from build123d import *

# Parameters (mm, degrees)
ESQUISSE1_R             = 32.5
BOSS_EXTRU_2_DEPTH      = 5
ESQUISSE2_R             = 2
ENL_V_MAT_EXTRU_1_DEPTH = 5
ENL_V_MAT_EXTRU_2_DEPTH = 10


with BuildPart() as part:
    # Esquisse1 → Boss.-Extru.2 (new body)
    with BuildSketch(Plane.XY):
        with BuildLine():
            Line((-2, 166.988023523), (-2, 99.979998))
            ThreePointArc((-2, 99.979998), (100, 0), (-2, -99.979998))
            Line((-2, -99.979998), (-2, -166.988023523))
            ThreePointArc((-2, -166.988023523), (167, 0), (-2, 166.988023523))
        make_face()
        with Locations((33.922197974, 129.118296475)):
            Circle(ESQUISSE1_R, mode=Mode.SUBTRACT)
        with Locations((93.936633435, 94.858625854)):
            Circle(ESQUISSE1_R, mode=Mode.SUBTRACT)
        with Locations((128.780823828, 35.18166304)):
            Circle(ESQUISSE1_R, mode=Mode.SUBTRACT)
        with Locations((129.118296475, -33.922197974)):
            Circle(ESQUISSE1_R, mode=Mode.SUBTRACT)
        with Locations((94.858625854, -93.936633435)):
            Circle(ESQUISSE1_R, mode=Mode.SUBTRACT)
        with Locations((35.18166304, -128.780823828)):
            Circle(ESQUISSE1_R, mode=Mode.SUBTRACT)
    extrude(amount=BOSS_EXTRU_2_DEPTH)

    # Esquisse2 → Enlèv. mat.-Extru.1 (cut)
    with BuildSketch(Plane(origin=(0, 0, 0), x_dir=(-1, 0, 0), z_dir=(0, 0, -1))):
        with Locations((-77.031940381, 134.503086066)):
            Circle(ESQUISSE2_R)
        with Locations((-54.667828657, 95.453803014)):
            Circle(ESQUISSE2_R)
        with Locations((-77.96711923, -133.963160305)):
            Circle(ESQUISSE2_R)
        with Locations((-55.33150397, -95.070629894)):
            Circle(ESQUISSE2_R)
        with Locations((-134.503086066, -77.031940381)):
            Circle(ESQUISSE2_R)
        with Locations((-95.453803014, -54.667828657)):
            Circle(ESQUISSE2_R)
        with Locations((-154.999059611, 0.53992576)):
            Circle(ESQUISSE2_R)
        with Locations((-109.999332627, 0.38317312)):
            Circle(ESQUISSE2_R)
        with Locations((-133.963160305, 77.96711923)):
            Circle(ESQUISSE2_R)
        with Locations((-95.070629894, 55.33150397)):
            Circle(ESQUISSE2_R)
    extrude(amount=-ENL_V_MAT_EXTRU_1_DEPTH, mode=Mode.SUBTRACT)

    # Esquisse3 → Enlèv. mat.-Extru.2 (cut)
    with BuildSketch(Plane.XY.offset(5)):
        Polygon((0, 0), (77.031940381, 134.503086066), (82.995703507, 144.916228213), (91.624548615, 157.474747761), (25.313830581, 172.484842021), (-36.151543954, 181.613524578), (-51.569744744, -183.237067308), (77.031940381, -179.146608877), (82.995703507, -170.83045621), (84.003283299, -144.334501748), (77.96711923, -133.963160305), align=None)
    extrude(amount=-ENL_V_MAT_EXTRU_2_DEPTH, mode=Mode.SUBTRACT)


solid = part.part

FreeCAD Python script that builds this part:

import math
import FreeCAD as App
import Part
import Sketcher

doc = App.newDocument("Part")
body = doc.addObject("PartDesign::Body", "Body")

# Sketch on XY plane
sketch1 = body.newObject("Sketcher::SketchObject", "Sketch")
sketch1.AttachmentSupport = (doc.getObject("XY_Plane"), [""])
sketch1.MapMode = "FlatFace"
sketch1.addGeometry(Part.LineSegment(App.Vector(-2, 167, 0), App.Vector(-2, 100, 0)), False)
sketch1.addGeometry(Part.ArcOfCircle(Part.Circle(App.Vector(0, 0, 0), App.Vector(0, 0, 1), 100), math.radians(-91), math.radians(91)), False)
sketch1.addGeometry(Part.LineSegment(App.Vector(-2, -100, 0), App.Vector(-2, -167, 0)), False)
sketch1.addGeometry(Part.ArcOfCircle(Part.Circle(App.Vector(0, 0, 0), App.Vector(0, 0, 1), 167), math.radians(-91), math.radians(91)), False)
sketch1.addGeometry(Part.Circle(App.Vector(35, -129, 0), App.Vector(0, 0, 1), 32), False)
sketch1.addGeometry(Part.Circle(App.Vector(95, -94, 0), App.Vector(0, 0, 1), 32), False)
sketch1.addGeometry(Part.Circle(App.Vector(129, -34, 0), App.Vector(0, 0, 1), 32), False)
sketch1.addGeometry(Part.Circle(App.Vector(34, 129, 0), App.Vector(0, 0, 1), 32), False)
sketch1.addGeometry(Part.Circle(App.Vector(129, 35, 0), App.Vector(0, 0, 1), 32), False)
sketch1.addGeometry(Part.Circle(App.Vector(94, 95, 0), App.Vector(0, 0, 1), 32), False)
sketch1.addConstraint(Sketcher.Constraint("Coincident", 0, 2, 1, 2))
sketch1.addConstraint(Sketcher.Constraint("Coincident", 1, 1, 2, 1))
sketch1.addConstraint(Sketcher.Constraint("Coincident", 2, 2, 3, 1))
sketch1.addConstraint(Sketcher.Constraint("Coincident", 3, 2, 0, 1))
sketch1.addConstraint(Sketcher.Constraint("Vertical", 0))
sketch1.addConstraint(Sketcher.Constraint("Vertical", 2))
sketch1.addConstraint(Sketcher.Constraint("Coincident", 1, 3, -1, 1))
sketch1.addConstraint(Sketcher.Constraint("Coincident", 3, 3, -1, 1))
sketch1.addConstraint(Sketcher.Constraint("Equal", 4, 5))
sketch1.addConstraint(Sketcher.Constraint("Equal", 5, 6))
sketch1.addConstraint(Sketcher.Constraint("Equal", 6, 7))
sketch1.addConstraint(Sketcher.Constraint("Equal", 7, 8))
sketch1.addConstraint(Sketcher.Constraint("Equal", 8, 9))
sketch1.addConstraint(Sketcher.Constraint("Vertical", 0, 2, 1, 1))
sketch1.addConstraint(Sketcher.Constraint("Diameter", 4, 65.0))
sketch1.addConstraint(Sketcher.Constraint("Radius", 1, 100.0))
sketch1.addConstraint(Sketcher.Constraint("Radius", 3, 167.0))
sketch1.addConstraint(Sketcher.Constraint("DistanceX", 0, 2, -1, 1, 2.0))
sketch1.addConstraint(Sketcher.Constraint("DistanceX", 7, 3, 6, 3, 95.196099))
sketch1.addConstraint(Sketcher.Constraint("DistanceY", 0, 2, 7, 3, 29.138298))
sketch1.addConstraint(Sketcher.Constraint("DistanceY", 1, 1, 6, 3, 66.0578))
sketch1.addConstraint(Sketcher.Constraint("DistanceY", 2, 2, 4, 3, 38.2072))
sketch1.addConstraint(Sketcher.Constraint("DistanceY", 4, 3, 5, 3, 34.84419))
sketch1.addConstraint(Sketcher.Constraint("DistanceX", 5, 3, 6, 3, 34.259671))
sketch1.addConstraint(Sketcher.Constraint("DistanceY", 6, 3, 8, 3, 69.103861))
sketch1.addConstraint(Sketcher.Constraint("DistanceY", 9, 3, 7, 3, 34.259671))
sketch1.addConstraint(Sketcher.Constraint("DistanceX", 9, 3, 8, 3, 34.84419))
sketch1.addConstraint(Sketcher.Constraint("DistanceX", -1, 1, 4, 3, 35.181663))
sketch1.addConstraint(Sketcher.Constraint("DistanceX", -1, 1, 5, 3, 94.858626))
sketch1.addConstraint(Sketcher.Constraint("DistanceX", -1, 1, 8, 3, 128.780824))
pad1 = body.newObject("PartDesign::Pad", "Pad")
pad1.Profile = sketch1
pad1.Length = 5

# Sketch on XY plane
sketch2 = body.newObject("Sketcher::SketchObject", "Sketch001")
sketch2.AttachmentSupport = (doc.getObject("XY_Plane"), [""])
sketch2.MapMode = "FlatFace"
sketch2.addGeometry(Part.Circle(App.Vector(77, 134.5, 0), App.Vector(0, 0, 1), 2), False)
sketch2.addGeometry(Part.Circle(App.Vector(54.7, 95.5, 0), App.Vector(0, 0, 1), 2), False)
sketch2.addGeometry(Part.Circle(App.Vector(78, -134, 0), App.Vector(0, 0, 1), 2), False)
sketch2.addGeometry(Part.Circle(App.Vector(55.3, -95.1, 0), App.Vector(0, 0, 1), 2), False)
sketch2.addGeometry(Part.Circle(App.Vector(134.5, -77, 0), App.Vector(0, 0, 1), 2), False)
sketch2.addGeometry(Part.Circle(App.Vector(95.5, -54.7, 0), App.Vector(0, 0, 1), 2), False)
sketch2.addGeometry(Part.Circle(App.Vector(155, 0.5, 0), App.Vector(0, 0, 1), 2), False)
sketch2.addGeometry(Part.Circle(App.Vector(110, 0.4, 0), App.Vector(0, 0, 1), 2), False)
sketch2.addGeometry(Part.Circle(App.Vector(134, 78, 0), App.Vector(0, 0, 1), 2), False)
sketch2.addGeometry(Part.Circle(App.Vector(95.1, 55.3, 0), App.Vector(0, 0, 1), 2), False)
sketch2.addConstraint(Sketcher.Constraint("Equal", 0, 1))
sketch2.addConstraint(Sketcher.Constraint("Equal", 1, 2))
sketch2.addConstraint(Sketcher.Constraint("Equal", 2, 3))
sketch2.addConstraint(Sketcher.Constraint("Equal", 3, 4))
sketch2.addConstraint(Sketcher.Constraint("Equal", 4, 5))
sketch2.addConstraint(Sketcher.Constraint("Equal", 5, 6))
sketch2.addConstraint(Sketcher.Constraint("Equal", 6, 7))
sketch2.addConstraint(Sketcher.Constraint("Equal", 7, 8))
sketch2.addConstraint(Sketcher.Constraint("Equal", 8, 9))
sketch2.addConstraint(Sketcher.Constraint("Diameter", 0, 4.0))
sketch2.addConstraint(Sketcher.Constraint("DistanceY", 5, 3, 7, 3, 55.051002))
sketch2.addConstraint(Sketcher.Constraint("DistanceX", 3, 3, 5, 3, 40.122299))
sketch2.addConstraint(Sketcher.Constraint("DistanceY", 3, 3, 5, 3, 40.402801))
sketch2.addConstraint(Sketcher.Constraint("DistanceX", 8, 3, 6, 3, 21.035899))
sketch2.addConstraint(Sketcher.Constraint("DistanceX", 1, 3, 9, 3, 40.402801))
sketch2.addConstraint(Sketcher.Constraint("DistanceY", 9, 3, 1, 3, 40.122299))
sketch2.addConstraint(Sketcher.Constraint("DistanceX", -1, 1, 0, 3, 77.03194))
sketch2.addConstraint(Sketcher.Constraint("DistanceX", -1, 1, 1, 3, 54.667829))
sketch2.addConstraint(Sketcher.Constraint("DistanceX", -1, 1, 2, 3, 77.967119))
sketch2.addConstraint(Sketcher.Constraint("DistanceY", 2, 3, -1, 1, 133.96316))
sketch2.addConstraint(Sketcher.Constraint("DistanceY", 3, 3, -1, 1, 95.07063))
sketch2.addConstraint(Sketcher.Constraint("DistanceY", 4, 3, -1, 1, 77.03194))
sketch2.addConstraint(Sketcher.Constraint("DistanceX", -1, 1, 6, 3, 154.99906))
sketch2.addConstraint(Sketcher.Constraint("DistanceY", -1, 1, 8, 3, 77.967119))
sketch2.addConstraint(Sketcher.Constraint("DistanceY", 5, 3, 1, 3, 150.121632))
sketch2.addConstraint(Sketcher.Constraint("DistanceX", 5, 3, 7, 3, 14.54553))
sketch2.addConstraint(Sketcher.Constraint("DistanceY", 6, 3, 9, 3, 54.791578))
sketch2.addConstraint(Sketcher.Constraint("DistanceY", -1, 1, 0, 3, 134.503086))
sketch2.addConstraint(Sketcher.Constraint("DistanceX", -1, 1, 3, 3, 55.331504))
sketch2.addConstraint(Sketcher.Constraint("DistanceX", -1, 1, 4, 3, 134.503086))
pocket1 = body.newObject("PartDesign::Pocket", "Pocket")
pocket1.Profile = sketch2
pocket1.Length = 5
pocket1.Reversed = True

# Sketch on XY plane
sketch3 = body.newObject("Sketcher::SketchObject", "Sketch002")
sketch3.AttachmentSupport = (doc.getObject("XY_Plane"), [""])
sketch3.MapMode = "FlatFace"
sketch3.AttachmentOffset = App.Placement(App.Vector(0, 0, 5), App.Rotation())
sketch3.addGeometry(Part.LineSegment(App.Vector(0, 0, 0), App.Vector(77, 135, 0)), False)
sketch3.addGeometry(Part.LineSegment(App.Vector(77, 135, 0), App.Vector(83, 145, 0)), False)
sketch3.addGeometry(Part.LineSegment(App.Vector(83, 145, 0), App.Vector(92, 157, 0)), False)
sketch3.addGeometry(Part.LineSegment(App.Vector(92, 157, 0), App.Vector(25, 172, 0)), False)
sketch3.addGeometry(Part.LineSegment(App.Vector(25, 172, 0), App.Vector(-36, 182, 0)), False)
sketch3.addGeometry(Part.LineSegment(App.Vector(-36, 182, 0), App.Vector(-52, -183, 0)), False)
sketch3.addGeometry(Part.LineSegment(App.Vector(-52, -183, 0), App.Vector(77, -179, 0)), False)
sketch3.addGeometry(Part.LineSegment(App.Vector(77, -179, 0), App.Vector(83, -171, 0)), False)
sketch3.addGeometry(Part.LineSegment(App.Vector(83, -171, 0), App.Vector(84, -144, 0)), False)
sketch3.addGeometry(Part.LineSegment(App.Vector(84, -144, 0), App.Vector(78, -134, 0)), False)
sketch3.addGeometry(Part.LineSegment(App.Vector(78, -134, 0), App.Vector(0, 0, 0)), False)
sketch3.addConstraint(Sketcher.Constraint("Coincident", 0, 2, 1, 1))
sketch3.addConstraint(Sketcher.Constraint("Coincident", 1, 2, 2, 1))
sketch3.addConstraint(Sketcher.Constraint("Coincident", 2, 2, 3, 1))
sketch3.addConstraint(Sketcher.Constraint("Coincident", 3, 2, 4, 1))
sketch3.addConstraint(Sketcher.Constraint("Coincident", 4, 2, 5, 1))
sketch3.addConstraint(Sketcher.Constraint("Coincident", 5, 2, 6, 1))
sketch3.addConstraint(Sketcher.Constraint("Coincident", 6, 2, 7, 1))
sketch3.addConstraint(Sketcher.Constraint("Coincident", 7, 2, 8, 1))
sketch3.addConstraint(Sketcher.Constraint("Coincident", 8, 2, 9, 1))
sketch3.addConstraint(Sketcher.Constraint("Coincident", 9, 2, 10, 1))
sketch3.addConstraint(Sketcher.Constraint("Coincident", 10, 2, 0, 1))
sketch3.addConstraint(Sketcher.Constraint("Coincident", 10, 2, -1, 1))
sketch3.addConstraint(Sketcher.Constraint("Parallel", 0, 1))
sketch3.addConstraint(Sketcher.Constraint("Parallel", 9, 10))
sketch3.addConstraint(Sketcher.Constraint("Vertical", 0, 2, 6, 2))
sketch3.addConstraint(Sketcher.Constraint("Vertical", 1, 2, 7, 2))
sketch3.addConstraint(Sketcher.Constraint("Equal", 1, 9))
sketch3.addConstraint(Sketcher.Constraint("Equal", 0, 10))
sketch3.addConstraint(Sketcher.Constraint("Distance", 0, 155.0))
sketch3.addConstraint(Sketcher.Constraint("Distance", 1, 12.0))
sketch3.addConstraint(Sketcher.Constraint("DistanceY", 8, 2, -1, 1, 144.334502))
sketch3.addConstraint(Sketcher.Constraint("DistanceX", 5, 2, 4, 2, 15.418201))
sketch3.addConstraint(Sketcher.Constraint("Distance", 3, 67.988339))
sketch3.addConstraint(Sketcher.Constraint("Distance", 4, 62.139562))
sketch3.addConstraint(Sketcher.Constraint("Distance", 6, 128.666722))
sketch3.addConstraint(Sketcher.Constraint("DistanceX", -1, 1, 0, 2, 77.03194))
sketch3.addConstraint(Sketcher.Constraint("DistanceX", -1, 1, 2, 2, 91.624549))
sketch3.addConstraint(Sketcher.Constraint("DistanceX", -1, 1, 3, 2, 25.313831))
sketch3.addConstraint(Sketcher.Constraint("DistanceY", 6, 2, -1, 1, 179.146609))
sketch3.addConstraint(Sketcher.Constraint("DistanceY", 1, 2, 2, 2, 12.55852))
sketch3.addConstraint(Sketcher.Constraint("DistanceY", 0, 2, 4, 2, 47.110439))
sketch3.addConstraint(Sketcher.Constraint("DistanceY", 5, 2, 7, 2, 12.406611))
pocket2 = body.newObject("PartDesign::Pocket", "Pocket001")
pocket2.Profile = sketch3
pocket2.Length = 10

doc.recompute()
